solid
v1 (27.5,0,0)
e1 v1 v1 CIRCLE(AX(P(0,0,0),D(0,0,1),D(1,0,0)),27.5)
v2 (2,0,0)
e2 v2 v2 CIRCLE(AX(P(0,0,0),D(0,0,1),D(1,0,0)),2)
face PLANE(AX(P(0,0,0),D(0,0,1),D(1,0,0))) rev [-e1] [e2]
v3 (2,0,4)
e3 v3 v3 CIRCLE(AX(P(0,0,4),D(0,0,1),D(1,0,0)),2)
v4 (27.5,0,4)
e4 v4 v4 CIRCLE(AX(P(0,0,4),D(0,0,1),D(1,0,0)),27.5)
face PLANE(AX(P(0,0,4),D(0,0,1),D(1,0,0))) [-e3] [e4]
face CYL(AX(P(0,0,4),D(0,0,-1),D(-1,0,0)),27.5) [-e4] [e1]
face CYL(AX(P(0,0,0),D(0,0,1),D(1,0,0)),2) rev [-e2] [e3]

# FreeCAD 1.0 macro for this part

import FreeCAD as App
import Part
import Sketcher

V = App.Vector

doc = App.newDocument("Part")
body = doc.addObject("PartDesign::Body", "Body")

sketch1 = body.newObject("Sketcher::SketchObject", "Sketch")
sketch1.AttachmentSupport = (doc.getObject("XY_Plane"), [""])
sketch1.MapMode = "FlatFace"
sketch1.addGeometry(Part.Circle(V(0, 0, 0), V(0, 0, 1), 27.5), False)
sketch1.addConstraint([
    Sketcher.Constraint("Coincident", 0, 3, -1, 1),
    Sketcher.Constraint("Diameter", 0, 55.0),
])
pad1 = body.newObject("PartDesign::Pad", "Pad")
pad1.Profile = sketch1
pad1.Length = 4

sketch2 = body.newObject("Sketcher::SketchObject", "Sketch001")
sketch2.AttachmentSupport = (doc.getObject("XY_Plane"), [""])
sketch2.MapMode = "FlatFace"
sketch2.AttachmentOffset = App.Placement(V(0, 0, 2), App.Rotation())
sketch2.addGeometry(Part.Circle(V(0, 0, 0), V(0, 0, 1), 2), False)
sketch2.addConstraint([
    Sketcher.Constraint("Coincident", 0, 3, -1, 1),
    Sketcher.Constraint("Diameter", 0, 4.0),
])
pocket1 = body.newObject("PartDesign::Pocket", "Pocket")
pocket1.Profile = sketch2
pocket1.Length = 4
pocket1.Midplane = True

doc.recompute()
